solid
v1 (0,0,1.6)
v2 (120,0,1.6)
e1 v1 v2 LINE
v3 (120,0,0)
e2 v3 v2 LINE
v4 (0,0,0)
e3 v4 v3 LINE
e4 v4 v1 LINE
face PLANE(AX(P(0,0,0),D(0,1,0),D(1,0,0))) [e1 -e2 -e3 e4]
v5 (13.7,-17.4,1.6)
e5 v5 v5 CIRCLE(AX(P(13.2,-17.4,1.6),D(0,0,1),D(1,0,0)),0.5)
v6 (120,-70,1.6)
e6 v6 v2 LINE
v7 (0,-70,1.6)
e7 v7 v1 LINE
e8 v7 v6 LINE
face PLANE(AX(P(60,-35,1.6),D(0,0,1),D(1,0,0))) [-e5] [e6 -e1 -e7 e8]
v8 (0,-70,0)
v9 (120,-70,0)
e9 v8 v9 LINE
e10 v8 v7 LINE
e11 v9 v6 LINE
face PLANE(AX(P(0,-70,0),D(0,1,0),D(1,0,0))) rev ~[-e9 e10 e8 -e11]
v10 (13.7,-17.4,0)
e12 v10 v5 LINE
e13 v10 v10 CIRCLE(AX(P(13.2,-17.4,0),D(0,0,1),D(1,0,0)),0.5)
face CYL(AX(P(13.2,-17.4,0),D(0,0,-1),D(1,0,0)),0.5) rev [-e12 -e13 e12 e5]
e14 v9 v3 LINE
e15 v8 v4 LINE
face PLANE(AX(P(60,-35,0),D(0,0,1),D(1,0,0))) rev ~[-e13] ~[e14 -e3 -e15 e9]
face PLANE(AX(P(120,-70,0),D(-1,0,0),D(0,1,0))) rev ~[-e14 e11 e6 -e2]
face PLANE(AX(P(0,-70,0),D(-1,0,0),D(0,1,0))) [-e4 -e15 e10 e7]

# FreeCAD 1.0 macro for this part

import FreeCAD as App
import Part
import Sketcher
from FreeCAD import Vector

doc = App.newDocument("Part")
params = doc.addObject("Spreadsheet::Sheet", "Params")
for row, (alias, value) in enumerate([
    ("sketch1_diameter", "1 mm"),
    ("sketch1_width", "120 mm"),
    ("sketch1_height", "70 mm"),
    ("pad1_length", "1.6 mm"),
], start=1):
    params.set(f"A{row}", alias)
    params.set(f"B{row}", "=" + value)
    params.setAlias(f"B{row}", alias)

body = doc.addObject("PartDesign::Body", "Body")

# Sketch on XY plane
sketch1 = body.newObject("Sketcher::SketchObject", "Sketch")
sketch1.AttachmentSupport = (doc.getObject("XY_Plane"), [""])
sketch1.MapMode = "FlatFace"
sketch1.addGeometry(Part.LineSegment(Vector(0, 0, 0), Vector(0, -70, 0)), False)
sketch1.addGeometry(Part.LineSegment(Vector(0, -70, 0), Vector(120, -70, 0)), False)
sketch1.addGeometry(Part.LineSegment(Vector(120, -70, 0), Vector(120, 0, 0)), False)
sketch1.addGeometry(Part.LineSegment(Vector(120, 0, 0), Vector(0, 0, 0)), False)
sketch1.addGeometry(Part.Circle(Vector(13.2, -17.4, 0), Vector(0, 0, 1), 0.5), False)
sketch1.addConstraint(Sketcher.Constraint("Coincident", 0, 2, 1, 1))
sketch1.addConstraint(Sketcher.Constraint("Coincident", 1, 2, 2, 1))
sketch1.addConstraint(Sketcher.Constraint("Coincident", 2, 2, 3, 1))
sketch1.addConstraint(Sketcher.Constraint("Coincident", 3, 2, 0, 1))
sketch1.addConstraint(Sketcher.Constraint("Vertical", 0))
sketch1.addConstraint(Sketcher.Constraint("Horizontal", 1))
sketch1.addConstraint(Sketcher.Constraint("Vertical", 2))
sketch1.addConstraint(Sketcher.Constraint("Horizontal", 3))
sketch1.addConstraint(Sketcher.Constraint("Coincident", 3, 2, -1, 1))
sketch1.addConstraint(Sketcher.Constraint("Diameter", 4, 1.0))
sketch1.addConstraint(Sketcher.Constraint("DistanceX", 1, 1, 1, 2, 120.0))
sketch1.addConstraint(Sketcher.Constraint("DistanceY", 0, 2, 0, 1, 70.0))
sketch1.addConstraint(Sketcher.Constraint("DistanceX", -1, 1, 4, 3, 13.2))
sketch1.addConstraint(Sketcher.Constraint("DistanceY", 4, 3, -1, 1, 17.4))
sketch1.setExpression("Constraints[9]", "Params.sketch1_diameter")
sketch1.setExpression("Constraints[10]", "Params.sketch1_width")
sketch1.setExpression("Constraints[11]", "Params.sketch1_height")
pad1 = body.newObject("PartDesign::Pad", "Pad")
pad1.Profile = sketch1
pad1.setExpression("Length", "Params.pad1_length")

doc.recompute()
